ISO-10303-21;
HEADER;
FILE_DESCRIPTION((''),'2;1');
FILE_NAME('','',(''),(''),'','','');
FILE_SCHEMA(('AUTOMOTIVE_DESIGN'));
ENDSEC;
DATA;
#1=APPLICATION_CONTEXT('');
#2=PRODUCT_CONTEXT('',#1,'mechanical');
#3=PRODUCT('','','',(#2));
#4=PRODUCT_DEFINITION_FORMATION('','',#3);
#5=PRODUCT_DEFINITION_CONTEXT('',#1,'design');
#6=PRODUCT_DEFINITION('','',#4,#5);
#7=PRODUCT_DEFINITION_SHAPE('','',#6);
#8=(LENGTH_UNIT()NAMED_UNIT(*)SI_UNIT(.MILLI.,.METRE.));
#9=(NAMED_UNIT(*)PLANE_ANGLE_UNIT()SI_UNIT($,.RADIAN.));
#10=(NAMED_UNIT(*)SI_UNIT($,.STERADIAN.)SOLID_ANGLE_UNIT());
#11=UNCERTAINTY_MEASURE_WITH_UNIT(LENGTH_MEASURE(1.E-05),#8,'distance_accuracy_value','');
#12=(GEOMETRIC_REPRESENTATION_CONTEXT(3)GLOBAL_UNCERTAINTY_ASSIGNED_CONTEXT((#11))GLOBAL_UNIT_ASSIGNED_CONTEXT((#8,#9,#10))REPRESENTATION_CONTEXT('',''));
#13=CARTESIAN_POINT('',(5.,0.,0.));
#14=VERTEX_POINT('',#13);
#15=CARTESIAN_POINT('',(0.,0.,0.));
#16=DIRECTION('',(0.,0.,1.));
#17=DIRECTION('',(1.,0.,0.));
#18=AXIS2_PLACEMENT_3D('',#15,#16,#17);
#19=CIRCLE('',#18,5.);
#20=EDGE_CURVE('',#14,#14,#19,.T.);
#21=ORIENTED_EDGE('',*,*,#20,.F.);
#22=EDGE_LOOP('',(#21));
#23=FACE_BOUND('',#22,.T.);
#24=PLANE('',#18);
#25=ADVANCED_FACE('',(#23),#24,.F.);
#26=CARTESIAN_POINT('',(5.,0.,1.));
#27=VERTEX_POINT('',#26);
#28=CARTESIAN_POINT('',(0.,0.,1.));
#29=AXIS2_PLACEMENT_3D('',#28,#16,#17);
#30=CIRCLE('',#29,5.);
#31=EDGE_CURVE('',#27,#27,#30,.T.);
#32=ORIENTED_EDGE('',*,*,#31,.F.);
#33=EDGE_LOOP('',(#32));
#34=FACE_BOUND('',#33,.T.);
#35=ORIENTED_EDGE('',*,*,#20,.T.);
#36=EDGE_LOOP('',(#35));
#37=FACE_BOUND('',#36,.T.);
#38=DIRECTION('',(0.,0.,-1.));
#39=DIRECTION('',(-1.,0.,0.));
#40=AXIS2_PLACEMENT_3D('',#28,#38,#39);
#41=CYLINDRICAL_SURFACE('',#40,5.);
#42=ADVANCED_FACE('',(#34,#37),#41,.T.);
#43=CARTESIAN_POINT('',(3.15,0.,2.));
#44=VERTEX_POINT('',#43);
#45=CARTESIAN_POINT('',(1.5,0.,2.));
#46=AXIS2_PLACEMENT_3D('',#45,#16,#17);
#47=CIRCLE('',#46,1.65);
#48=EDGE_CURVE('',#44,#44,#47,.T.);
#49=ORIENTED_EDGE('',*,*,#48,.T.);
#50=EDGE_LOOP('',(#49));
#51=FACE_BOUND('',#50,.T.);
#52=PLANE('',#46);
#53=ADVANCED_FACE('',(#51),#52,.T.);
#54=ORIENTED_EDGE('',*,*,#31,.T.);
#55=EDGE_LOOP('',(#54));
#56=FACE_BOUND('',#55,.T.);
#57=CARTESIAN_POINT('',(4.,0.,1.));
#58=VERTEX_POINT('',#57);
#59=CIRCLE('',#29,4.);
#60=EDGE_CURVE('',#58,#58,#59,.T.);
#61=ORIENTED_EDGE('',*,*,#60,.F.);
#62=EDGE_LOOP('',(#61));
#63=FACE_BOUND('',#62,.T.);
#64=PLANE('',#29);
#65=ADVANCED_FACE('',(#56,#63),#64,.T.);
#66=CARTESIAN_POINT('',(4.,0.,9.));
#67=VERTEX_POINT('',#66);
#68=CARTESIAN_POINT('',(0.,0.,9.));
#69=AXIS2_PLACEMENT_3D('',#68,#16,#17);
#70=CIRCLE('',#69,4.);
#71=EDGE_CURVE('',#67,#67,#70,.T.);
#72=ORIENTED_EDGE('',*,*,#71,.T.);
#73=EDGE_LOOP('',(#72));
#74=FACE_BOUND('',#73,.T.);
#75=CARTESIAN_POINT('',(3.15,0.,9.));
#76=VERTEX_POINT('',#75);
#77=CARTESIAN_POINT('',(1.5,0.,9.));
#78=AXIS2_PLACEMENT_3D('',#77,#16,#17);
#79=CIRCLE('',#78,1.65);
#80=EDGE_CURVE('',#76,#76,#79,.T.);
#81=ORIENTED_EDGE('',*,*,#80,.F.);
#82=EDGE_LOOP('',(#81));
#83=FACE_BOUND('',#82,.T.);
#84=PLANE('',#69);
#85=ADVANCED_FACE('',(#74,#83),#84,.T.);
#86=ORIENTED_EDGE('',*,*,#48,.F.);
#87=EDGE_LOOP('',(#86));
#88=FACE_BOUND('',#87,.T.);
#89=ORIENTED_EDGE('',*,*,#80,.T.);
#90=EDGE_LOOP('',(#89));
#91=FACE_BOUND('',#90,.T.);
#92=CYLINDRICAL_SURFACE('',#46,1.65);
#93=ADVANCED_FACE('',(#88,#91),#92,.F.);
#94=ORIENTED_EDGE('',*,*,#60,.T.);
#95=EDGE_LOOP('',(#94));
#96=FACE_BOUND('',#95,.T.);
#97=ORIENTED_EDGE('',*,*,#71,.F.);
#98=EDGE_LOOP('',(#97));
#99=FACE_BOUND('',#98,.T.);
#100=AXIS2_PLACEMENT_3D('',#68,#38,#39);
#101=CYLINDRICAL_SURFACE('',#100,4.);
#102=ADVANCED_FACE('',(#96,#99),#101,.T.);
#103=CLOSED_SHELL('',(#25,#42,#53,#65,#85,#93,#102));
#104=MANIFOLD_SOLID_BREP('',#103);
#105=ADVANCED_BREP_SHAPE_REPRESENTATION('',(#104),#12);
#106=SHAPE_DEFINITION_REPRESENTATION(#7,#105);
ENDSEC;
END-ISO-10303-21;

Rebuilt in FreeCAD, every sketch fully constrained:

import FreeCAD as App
import Part
import Sketcher

V = App.Vector

doc = App.newDocument("Part")
body = doc.addObject("PartDesign::Body", "Body")

# Sketch on XY plane
sketch1 = body.newObject("Sketcher::SketchObject", "Sketch")
sketch1.AttachmentSupport = (doc.getObject("XY_Plane"), [""])
sketch1.MapMode = "FlatFace"
sketch1.addGeometry(Part.Circle(V(0, 0, 0), V(0, 0, 1), 5), False)
sketch1.addConstraint([
    Sketcher.Constraint("Coincident", 0, 3, -1, 1),
    Sketcher.Constraint("Diameter", 0, 10.0),
])
pad1 = body.newObject("PartDesign::Pad", "Pad")
pad1.Profile = sketch1
pad1.Length = 1

# Sketch on XY plane
sketch2 = body.newObject("Sketcher::SketchObject", "Sketch001")
sketch2.AttachmentSupport = (doc.getObject("XY_Plane"), [""])
sketch2.MapMode = "FlatFace"
sketch2.AttachmentOffset = App.Placement(V(0, 0, 1), App.Rotation())
sketch2.addGeometry(Part.Circle(V(0, 0, 0), V(0, 0, 1), 4), False)
sketch2.addConstraint([
    Sketcher.Constraint("Coincident", 0, 3, -1, 1),
    Sketcher.Constraint("Diameter", 0, 8.0),
])
pad2 = body.newObject("PartDesign::Pad", "Pad001")
pad2.Profile = sketch2
pad2.Length = 8

# Sketch on XY plane
sketch3 = body.newObject("Sketcher::SketchObject", "Sketch002")
sketch3.AttachmentSupport = (doc.getObject("XY_Plane"), [""])
sketch3.MapMode = "FlatFace"
sketch3.AttachmentOffset = App.Placement(V(0, 0, 9), App.Rotation())
sketch3.addGeometry(Part.Circle(V(1.5, 0, 0), V(0, 0, 1), 1.6), False)
sketch3.addConstraint([
    Sketcher.Constraint("PointOnObject", 0, 3, -1),
    Sketcher.Constraint("Diameter", 0, 3.3),
    Sketcher.Constraint("DistanceX", -1, 1, 0, 3, 1.5),
])
pocket1 = body.newObject("PartDesign::Pocket", "Pocket")
pocket1.Profile = sketch3
pocket1.Length = 7

doc.recompute()
